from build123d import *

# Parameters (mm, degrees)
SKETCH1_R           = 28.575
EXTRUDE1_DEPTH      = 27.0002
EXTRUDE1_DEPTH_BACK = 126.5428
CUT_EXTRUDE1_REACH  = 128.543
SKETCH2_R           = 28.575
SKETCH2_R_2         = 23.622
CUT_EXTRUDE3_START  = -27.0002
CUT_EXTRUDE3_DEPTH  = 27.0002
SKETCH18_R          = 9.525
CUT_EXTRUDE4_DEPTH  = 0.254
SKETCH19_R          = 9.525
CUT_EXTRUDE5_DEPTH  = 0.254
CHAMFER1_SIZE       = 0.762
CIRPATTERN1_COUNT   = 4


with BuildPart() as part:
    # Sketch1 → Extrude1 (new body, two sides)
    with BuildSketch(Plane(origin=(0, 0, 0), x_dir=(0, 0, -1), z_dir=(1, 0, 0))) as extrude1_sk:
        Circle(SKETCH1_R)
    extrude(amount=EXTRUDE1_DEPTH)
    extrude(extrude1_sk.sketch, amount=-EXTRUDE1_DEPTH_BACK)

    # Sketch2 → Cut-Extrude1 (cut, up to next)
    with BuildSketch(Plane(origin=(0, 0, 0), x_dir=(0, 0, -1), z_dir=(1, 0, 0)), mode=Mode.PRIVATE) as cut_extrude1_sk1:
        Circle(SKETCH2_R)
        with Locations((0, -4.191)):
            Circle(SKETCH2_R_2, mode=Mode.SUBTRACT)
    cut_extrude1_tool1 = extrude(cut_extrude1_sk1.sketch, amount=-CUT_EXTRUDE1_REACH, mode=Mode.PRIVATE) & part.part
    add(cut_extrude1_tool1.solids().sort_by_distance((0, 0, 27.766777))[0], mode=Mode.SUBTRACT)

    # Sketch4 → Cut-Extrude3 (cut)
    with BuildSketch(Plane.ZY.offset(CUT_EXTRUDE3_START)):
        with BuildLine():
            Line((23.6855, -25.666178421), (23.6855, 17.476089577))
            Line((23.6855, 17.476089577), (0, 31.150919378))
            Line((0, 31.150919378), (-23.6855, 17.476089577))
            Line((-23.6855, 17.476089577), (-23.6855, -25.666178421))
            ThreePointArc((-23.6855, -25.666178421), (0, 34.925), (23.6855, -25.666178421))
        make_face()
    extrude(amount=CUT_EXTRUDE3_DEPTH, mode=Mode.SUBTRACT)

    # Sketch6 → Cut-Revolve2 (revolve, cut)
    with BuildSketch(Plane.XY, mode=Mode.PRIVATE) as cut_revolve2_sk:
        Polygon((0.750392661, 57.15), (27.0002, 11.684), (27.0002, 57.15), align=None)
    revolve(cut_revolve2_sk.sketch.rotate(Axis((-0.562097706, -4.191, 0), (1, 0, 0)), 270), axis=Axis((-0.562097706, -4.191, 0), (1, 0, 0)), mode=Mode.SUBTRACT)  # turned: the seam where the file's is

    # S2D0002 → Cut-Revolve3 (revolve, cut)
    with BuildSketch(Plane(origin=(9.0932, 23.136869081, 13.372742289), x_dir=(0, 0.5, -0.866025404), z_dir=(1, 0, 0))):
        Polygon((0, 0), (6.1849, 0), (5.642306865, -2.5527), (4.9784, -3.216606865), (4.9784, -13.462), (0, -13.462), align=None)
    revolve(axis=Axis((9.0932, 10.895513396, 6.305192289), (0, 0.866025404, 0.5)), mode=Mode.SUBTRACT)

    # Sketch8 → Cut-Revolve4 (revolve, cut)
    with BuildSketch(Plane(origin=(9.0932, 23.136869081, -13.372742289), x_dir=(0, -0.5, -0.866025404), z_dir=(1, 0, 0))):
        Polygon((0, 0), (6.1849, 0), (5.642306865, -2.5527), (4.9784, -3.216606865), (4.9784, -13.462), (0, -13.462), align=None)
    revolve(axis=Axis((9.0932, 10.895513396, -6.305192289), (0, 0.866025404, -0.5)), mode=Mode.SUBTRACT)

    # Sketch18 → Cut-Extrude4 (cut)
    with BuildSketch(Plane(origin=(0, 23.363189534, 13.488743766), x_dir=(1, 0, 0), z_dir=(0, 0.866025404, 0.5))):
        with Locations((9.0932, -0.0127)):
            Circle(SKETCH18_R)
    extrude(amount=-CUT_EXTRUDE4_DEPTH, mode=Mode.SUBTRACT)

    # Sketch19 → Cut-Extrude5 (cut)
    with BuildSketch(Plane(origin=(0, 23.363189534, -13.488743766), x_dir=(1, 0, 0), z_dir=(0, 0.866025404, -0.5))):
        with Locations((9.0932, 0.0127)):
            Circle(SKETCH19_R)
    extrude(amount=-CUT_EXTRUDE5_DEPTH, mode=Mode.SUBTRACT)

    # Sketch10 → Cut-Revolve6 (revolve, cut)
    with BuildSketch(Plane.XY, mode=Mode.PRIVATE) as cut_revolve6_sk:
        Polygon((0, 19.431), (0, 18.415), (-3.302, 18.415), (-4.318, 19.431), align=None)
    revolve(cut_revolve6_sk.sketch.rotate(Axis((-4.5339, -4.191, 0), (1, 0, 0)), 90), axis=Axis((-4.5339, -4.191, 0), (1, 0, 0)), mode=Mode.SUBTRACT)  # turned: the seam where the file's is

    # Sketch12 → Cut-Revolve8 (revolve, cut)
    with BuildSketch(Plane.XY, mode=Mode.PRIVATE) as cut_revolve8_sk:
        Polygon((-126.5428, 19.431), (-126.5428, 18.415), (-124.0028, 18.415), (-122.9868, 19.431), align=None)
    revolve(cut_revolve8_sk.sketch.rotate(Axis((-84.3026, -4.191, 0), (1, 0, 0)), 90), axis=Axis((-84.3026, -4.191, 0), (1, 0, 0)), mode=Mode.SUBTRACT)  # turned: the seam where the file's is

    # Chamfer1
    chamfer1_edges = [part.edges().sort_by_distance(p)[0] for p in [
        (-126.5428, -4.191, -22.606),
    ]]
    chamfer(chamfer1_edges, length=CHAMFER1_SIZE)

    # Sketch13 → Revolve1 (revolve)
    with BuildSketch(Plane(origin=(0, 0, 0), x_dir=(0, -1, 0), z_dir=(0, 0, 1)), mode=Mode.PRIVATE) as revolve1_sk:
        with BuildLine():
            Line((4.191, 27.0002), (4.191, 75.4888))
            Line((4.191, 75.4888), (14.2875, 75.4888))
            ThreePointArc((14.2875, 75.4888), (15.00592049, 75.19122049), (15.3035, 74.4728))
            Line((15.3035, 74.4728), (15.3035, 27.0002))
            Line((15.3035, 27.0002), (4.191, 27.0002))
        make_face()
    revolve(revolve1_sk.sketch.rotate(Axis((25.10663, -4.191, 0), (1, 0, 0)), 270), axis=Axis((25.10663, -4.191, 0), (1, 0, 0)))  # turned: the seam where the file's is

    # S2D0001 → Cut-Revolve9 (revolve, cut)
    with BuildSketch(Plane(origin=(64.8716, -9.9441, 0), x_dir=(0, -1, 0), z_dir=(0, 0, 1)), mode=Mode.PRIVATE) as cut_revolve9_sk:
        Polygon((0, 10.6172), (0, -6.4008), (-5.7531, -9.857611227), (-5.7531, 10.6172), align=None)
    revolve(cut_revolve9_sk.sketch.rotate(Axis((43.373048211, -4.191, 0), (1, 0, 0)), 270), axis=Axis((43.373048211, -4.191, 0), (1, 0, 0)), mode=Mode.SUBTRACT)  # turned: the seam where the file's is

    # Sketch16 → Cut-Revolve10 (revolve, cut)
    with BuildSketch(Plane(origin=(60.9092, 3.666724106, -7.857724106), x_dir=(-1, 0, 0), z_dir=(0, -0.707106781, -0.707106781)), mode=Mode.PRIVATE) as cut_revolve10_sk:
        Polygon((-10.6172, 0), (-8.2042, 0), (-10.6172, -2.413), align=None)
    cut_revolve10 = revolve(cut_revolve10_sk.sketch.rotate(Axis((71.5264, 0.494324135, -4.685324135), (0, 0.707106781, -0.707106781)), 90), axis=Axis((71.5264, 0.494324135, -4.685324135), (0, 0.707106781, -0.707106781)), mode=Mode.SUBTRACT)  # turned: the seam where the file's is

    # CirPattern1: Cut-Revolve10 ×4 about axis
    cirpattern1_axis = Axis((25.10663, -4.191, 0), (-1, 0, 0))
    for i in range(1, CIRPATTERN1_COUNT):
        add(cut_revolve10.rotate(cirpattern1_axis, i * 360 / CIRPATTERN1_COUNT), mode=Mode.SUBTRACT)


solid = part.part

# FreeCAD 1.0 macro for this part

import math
import FreeCAD as App
import Part
import Sketcher

V = App.Vector
Q = App.Units.Quantity


def edges_at(feature, points):
    """Names of the edges that pass closest to the given points."""
    edges = feature.Shape.Edges
    near = lambda p: min(range(len(edges)), key=lambda i: edges[i].distToShape(Part.Vertex(*p))[0])
    return sorted({f"Edge{near(p) + 1}" for p in points})


def add_polygon(sketch, points):
    """Adds a closed chain of lines whose ends are joined by coincident constraints."""
    first, n = sketch.GeometryCount, len(points)
    for a, b in zip(points, points[1:] + points[:1]):
        sketch.addGeometry(Part.LineSegment(App.Vector(*a, 0), App.Vector(*b, 0)), False)
    for i in range(n):
        sketch.addConstraint(Sketcher.Constraint("Coincident", first + i, 2, first + (i + 1) % n, 1))

doc = App.newDocument("Part")
body = doc.addObject("PartDesign::Body", "Body")

sketch1 = body.newObject("Sketcher::SketchObject", "Sketch")
sketch1.AttachmentSupport = (doc.getObject("YZ_Plane"), [""])
sketch1.MapMode = "FlatFace"
sketch1.addGeometry(Part.Circle(V(0, 0, 0), V(0, 0, 1), 29), False)
sketch1.addConstraint(Sketcher.Constraint("Coincident", 0, 3, -1, 1))
sketch1.addConstraint(Sketcher.Constraint("Diameter", 0, Q("2.25 in")))
pad1 = body.newObject("PartDesign::Pad", "Pad")
pad1.Profile = sketch1
pad1.Type = "TwoLengths"
pad1.Length = Q("1.063 in")
pad1.Length2 = Q("4.982 in")

sketch2 = body.newObject("Sketcher::SketchObject", "Sketch001")
sketch2.AttachmentSupport = (doc.getObject("YZ_Plane"), [""])
sketch2.MapMode = "FlatFace"
sketch2.addGeometry(Part.Circle(V(0, 0, 0), V(0, 0, 1), 29), False)
sketch2.addGeometry(Part.Circle(V(-4, 0, 0), V(0, 0, 1), 24), False)
sketch2.addConstraint(Sketcher.Constraint("Coincident", 0, 3, -1, 1))
sketch2.addConstraint(Sketcher.Constraint("PointOnObject", 1, 3, -1))
sketch2.addConstraint(Sketcher.Constraint("Diameter", 0, Q("2.25 in")))
sketch2.addConstraint(Sketcher.Constraint("Diameter", 1, Q("1.86 in")))
sketch2.addConstraint(Sketcher.Constraint("DistanceX", 1, 3, -1, 1, Q("0.165 in")))
pocket1 = body.newObject("PartDesign::Pocket", "Pocket")
pocket1.Profile = sketch2
pocket1.Type = "UpToFirst"

sketch3 = body.newObject("Sketcher::SketchObject", "Sketch002")
sketch3.AttachmentSupport = (doc.getObject("YZ_Plane"), [""])
sketch3.MapMode = "FlatFace"
sketch3.AttachmentOffset = App.Placement(V(0, 0, 1.063 * 25.4), App.Rotation())
sketch3.addGeometry(Part.LineSegment(V(17, 24, 0), V(-26, 24, 0)), False)
sketch3.addGeometry(Part.ArcOfCircle(Part.Circle(V(0, 0, 0), V(0, 0, 1), 35), math.radians(-137), math.radians(137)), False)
sketch3.addGeometry(Part.LineSegment(V(-26, -24, 0), V(17, -24, 0)), False)
sketch3.addGeometry(Part.LineSegment(V(17, -24, 0), V(31, 0, 0)), False)
sketch3.addGeometry(Part.LineSegment(V(31, 0, 0), V(17, 24, 0)), False)
sketch3.addConstraint(Sketcher.Constraint("Coincident", 0, 2, 1, 2))
sketch3.addConstraint(Sketcher.Constraint("Coincident", 1, 1, 2, 1))
sketch3.addConstraint(Sketcher.Constraint("Coincident", 2, 2, 3, 1))
sketch3.addConstraint(Sketcher.Constraint("Coincident", 3, 2, 4, 1))
sketch3.addConstraint(Sketcher.Constraint("Coincident", 4, 2, 0, 1))
sketch3.addConstraint(Sketcher.Constraint("Horizontal", 0))
sketch3.addConstraint(Sketcher.Constraint("Horizontal", 2))
sketch3.addConstraint(Sketcher.Constraint("Coincident", 1, 3, -1, 1))
sketch3.addConstraint(Sketcher.Constraint("Symmetric", 2, 2, 4, 2, -1))
sketch3.addConstraint(Sketcher.Constraint("PointOnObject", 3, 2, -1))
sketch3.addConstraint(Sketcher.Constraint("Angle", 3, Q("60 deg")))
sketch3.addConstraint(Sketcher.Constraint("Radius", 1, Q("1.375 in")))
sketch3.addConstraint(Sketcher.Constraint("DistanceY", 1, 1, 0, 2, Q("1.865 in")))
sketch3.addConstraint(Sketcher.Constraint("DistanceX", 0, 2, 0, 1, 43.142268))
pocket2 = body.newObject("PartDesign::Pocket", "Pocket001")
pocket2.Profile = sketch3
pocket2.Length = Q("1.063 in")

sketch4 = body.newObject("Sketcher::SketchObject", "Sketch003")
sketch4.AttachmentSupport = (doc.getObject("XY_Plane"), [""])
sketch4.MapMode = "FlatFace"
add_polygon(sketch4, [(1, 57), (27, 12), (27, 57)])
sketch4.addGeometry(Part.LineSegment(V(1, -4, 0), V(27, -4, 0)), True)
sketch4.addConstraint(Sketcher.Constraint("Vertical", 1))
sketch4.addConstraint(Sketcher.Constraint("Horizontal", 2))
sketch4.addConstraint(Sketcher.Constraint("Horizontal", 3))
sketch4.addConstraint(Sketcher.Constraint("Vertical", 2, 2, 3, 1))
sketch4.addConstraint(Sketcher.Constraint("Vertical", 1, 2, 3, 2))
sketch4.addConstraint(Sketcher.Constraint("Angle", 0, Q("-60 deg")))
sketch4.addConstraint(Sketcher.Constraint("DistanceY", 1, 1, 1, 2, Q("1.79 in")))
sketch4.addConstraint(Sketcher.Constraint("DistanceY", -1, 1, 0, 2, Q("0.46 in")))
sketch4.addConstraint(Sketcher.Constraint("DistanceX", -1, 1, 0, 2, Q("1.063 in")))
sketch4.addConstraint(Sketcher.Constraint("DistanceY", 3, 1, -1, 1, Q("0.165 in")))
groove = body.newObject("PartDesign::Groove", "Groove")
groove.Profile = sketch4
groove.ReferenceAxis = (sketch4, ["Axis0"])
groove.Angle = 360

sketch5 = body.newObject("Sketcher::SketchObject", "Sketch004")
sketch5.AttachmentSupport = (doc.getObject("YZ_Plane"), [""])
sketch5.MapMode = "FlatFace"
sketch5.AttachmentOffset = App.Placement(V(0, 0, 0.358 * 25.4), App.Rotation())
add_polygon(sketch5, [(26.2, 8), (23.1, 13.4), (11.5, 6.6), (14, 2.3), (22.8, 7.5), (23.7, 7.2)])
sketch5.addGeometry(Part.LineSegment(V(11.5, 6.6, 0), V(23.1, 13.4, 0)), True)
sketch5.addConstraint(Sketcher.Constraint("Coincident", 6, 1, 1, 2))
sketch5.addConstraint(Sketcher.Constraint("Coincident", 6, 2, 0, 2))
sketch5.addConstraint(Sketcher.Constraint("Perpendicular", 0, 1))
sketch5.addConstraint(Sketcher.Constraint("Perpendicular", 1, 2))
sketch5.addConstraint(Sketcher.Constraint("Perpendicular", 2, 3))
sketch5.addConstraint(Sketcher.Constraint("Angle", 0, Q("120 deg")))
sketch5.addConstraint(Sketcher.Constraint("Angle", 4, Q("-15 deg")))
sketch5.addConstraint(Sketcher.Constraint("Angle", 5, Q("18 deg")))
sketch5.addConstraint(Sketcher.Constraint("Distance", 1, Q("0.53 in")))
sketch5.addConstraint(Sketcher.Constraint("Distance", 2, Q("0.196 in")))
sketch5.addConstraint(Sketcher.Constraint("Distance", 0, Q("0.2435 in")))
sketch5.addConstraint(Sketcher.Constraint("DistanceX", 4, 2, 5, 2, 2.482))
sketch5.addConstraint(Sketcher.Constraint("DistanceX", -1, 1, 0, 2, 23.136869))
sketch5.addConstraint(Sketcher.Constraint("DistanceY", -1, 1, 2, 2, 2.330321))
groove2 = body.newObject("PartDesign::Groove", "Groove001")
groove2.Profile = sketch5
groove2.ReferenceAxis = (sketch5, ["Axis0"])
groove2.Angle = 360

sketch6 = body.newObject("Sketcher::SketchObject", "Sketch005")
sketch6.AttachmentSupport = (doc.getObject("YZ_Plane"), [""])
sketch6.MapMode = "FlatFace"
sketch6.AttachmentOffset = App.Placement(V(0, 0, 0.358 * 25.4), App.Rotation())
add_polygon(sketch6, [(20, -18.7), (23.1, -13.4), (11.5, -6.6), (9, -11), (17.9, -16.1), (18.1, -17)])
sketch6.addGeometry(Part.LineSegment(V(11.5, -6.6, 0), V(23.1, -13.4, 0)), True)
sketch6.addConstraint(Sketcher.Constraint("Coincident", 6, 1, 1, 2))
sketch6.addConstraint(Sketcher.Constraint("Coincident", 6, 2, 0, 2))
sketch6.addConstraint(Sketcher.Constraint("Perpendicular", 0, 1))
sketch6.addConstraint(Sketcher.Constraint("Perpendicular", 1, 2))
sketch6.addConstraint(Sketcher.Constraint("Perpendicular", 2, 3))
sketch6.addConstraint(Sketcher.Constraint("Angle", 0, Q("60 deg")))
sketch6.addConstraint(Sketcher.Constraint("Angle", 4, Q("-75 deg")))
sketch6.addConstraint(Sketcher.Constraint("Angle", 5, Q("-42 deg")))
sketch6.addConstraint(Sketcher.Constraint("Distance", 1, Q("0.53 in")))
sketch6.addConstraint(Sketcher.Constraint("Distance", 2, Q("0.196 in")))
sketch6.addConstraint(Sketcher.Constraint("Distance", 0, Q("0.2435 in")))
sketch6.addConstraint(Sketcher.Constraint("Distance", 5, 2.609729))
sketch6.addConstraint(Sketcher.Constraint("DistanceX", -1, 1, 0, 2, 23.136869))
sketch6.addConstraint(Sketcher.Constraint("DistanceY", 3, 2, -1, 1, 16.07586))
groove3 = body.newObject("PartDesign::Groove", "Groove002")
groove3.Profile = sketch6
groove3.ReferenceAxis = (sketch6, ["Axis0"])
groove3.Angle = 360

sketch7 = body.newObject("Sketcher::SketchObject", "Sketch006")
sketch7.Placement = App.Placement(V(0, 23.36319, 13.488744), App.Rotation(V(1, 0, 0), V(0, 0.5, -0.866025404), V(0, 0.866025404, 0.5), "ZXY"))
sketch7.addGeometry(Part.Circle(V(9, 0, 0), V(0, 0, 1), 10), False)
sketch7.addConstraint(Sketcher.Constraint("Diameter", 0, Q("0.75 in")))
sketch7.addConstraint(Sketcher.Constraint("DistanceX", -1, 1, 0, 3, Q("0.358 in")))
sketch7.addConstraint(Sketcher.Constraint("DistanceY", 0, 3, -1, 1, Q("0.0005 in")))
pocket3 = body.newObject("PartDesign::Pocket", "Pocket002")
pocket3.Profile = sketch7
pocket3.Length = Q("0.01 in")

sketch8 = body.newObject("Sketcher::SketchObject", "Sketch007")
sketch8.Placement = App.Placement(V(0, 23.36319, -13.488744), App.Rotation(V(1, 0, 0), V(0, -0.5, -0.866025404), V(0, 0.866025404, -0.5), "ZXY"))
sketch8.addGeometry(Part.Circle(V(9, 0, 0), V(0, 0, 1), 10), False)
sketch8.addConstraint(Sketcher.Constraint("Diameter", 0, Q("0.75 in")))
sketch8.addConstraint(Sketcher.Constraint("DistanceX", -1, 1, 0, 3, Q("0.358 in")))
sketch8.addConstraint(Sketcher.Constraint("DistanceY", -1, 1, 0, 3, Q("0.0005 in")))
pocket4 = body.newObject("PartDesign::Pocket", "Pocket003")
pocket4.Profile = sketch8
pocket4.Length = Q("0.01 in")

sketch9 = body.newObject("Sketcher::SketchObject", "Sketch008")
sketch9.AttachmentSupport = (doc.getObject("XY_Plane"), [""])
sketch9.MapMode = "FlatFace"
add_polygon(sketch9, [(0, 18.4), (0, 19.4), (-4.3, 19.4), (-3.3, 18.4)])
sketch9.addGeometry(Part.LineSegment(V(-4.3, -4.2, 0), V(0, -4.2, 0)), True)
sketch9.addConstraint(Sketcher.Constraint("Vertical", 0))
sketch9.addConstraint(Sketcher.Constraint("Horizontal", 1))
sketch9.addConstraint(Sketcher.Constraint("Horizontal", 3))
sketch9.addConstraint(Sketcher.Constraint("Horizontal", 4))
sketch9.addConstraint(Sketcher.Constraint("PointOnObject", 0, 2, -2))
sketch9.addConstraint(Sketcher.Constraint("PointOnObject", 4, 2, -2))
sketch9.addConstraint(Sketcher.Constraint("Vertical", 1, 2, 4, 1))
sketch9.addConstraint(Sketcher.Constraint("Angle", 2, Q("-45 deg")))
sketch9.addConstraint(Sketcher.Constraint("DistanceX", 1, 2, 1, 1, Q("0.17 in")))
sketch9.addConstraint(Sketcher.Constraint("DistanceX", 3, 1, 3, 2, Q("0.13 in")))
sketch9.addConstraint(Sketcher.Constraint("DistanceY", 4, 1, 2, 2, Q("0.89 in")))
sketch9.addConstraint(Sketcher.Constraint("DistanceY", -1, 1, 0, 2, Q("0.765 in")))
groove4 = body.newObject("PartDesign::Groove", "Groove003")
groove4.Profile = sketch9
groove4.ReferenceAxis = (sketch9, ["Axis0"])
groove4.Angle = 360

sketch10 = body.newObject("Sketcher::SketchObject", "Sketch009")
sketch10.AttachmentSupport = (doc.getObject("XY_Plane"), [""])
sketch10.MapMode = "FlatFace"
add_polygon(sketch10, [(-126.5, 19.4), (-126.5, 18.4), (-124, 18.4), (-123, 19.4)])
sketch10.addGeometry(Part.LineSegment(V(-126.5, -4.2, 0), V(-123, -4.2, 0)), True)
sketch10.addConstraint(Sketcher.Constraint("Vertical", 0))
sketch10.addConstraint(Sketcher.Constraint("Horizontal", 1))
sketch10.addConstraint(Sketcher.Constraint("Horizontal", 3))
sketch10.addConstraint(Sketcher.Constraint("Horizontal", 4))
sketch10.addConstraint(Sketcher.Constraint("Vertical", 3, 2, 4, 1))
sketch10.addConstraint(Sketcher.Constraint("Vertical", 2, 2, 4, 2))
sketch10.addConstraint(Sketcher.Constraint("DistanceX", 1, 1, 1, 2, Q("0.1 in")))
sketch10.addConstraint(Sketcher.Constraint("Angle", 2, Q("45 deg")))
sketch10.addConstraint(Sketcher.Constraint("DistanceX", 3, 2, 3, 1, Q("0.14 in")))
sketch10.addConstraint(Sketcher.Constraint("DistanceY", 4, 1, 0, 2, Q("0.89 in")))
sketch10.addConstraint(Sketcher.Constraint("DistanceX", 0, 2, -1, 1, Q("4.982 in")))
sketch10.addConstraint(Sketcher.Constraint("DistanceY", -1, 1, 0, 2, Q("0.725 in")))
groove5 = body.newObject("PartDesign::Groove", "Groove004")
groove5.Profile = sketch10
groove5.ReferenceAxis = (sketch10, ["Axis0"])
groove5.Angle = 360
doc.recompute()

chamfer = body.newObject("PartDesign::Chamfer", "Chamfer")
chamfer.Base = (groove5, edges_at(groove5, [(-126.543, -4.191, -22.606)]))
chamfer.Size = Q("0.03 in")

sketch11 = body.newObject("Sketcher::SketchObject", "Sketch010")
sketch11.AttachmentSupport = (doc.getObject("XY_Plane"), [""])
sketch11.MapMode = "FlatFace"
sketch11.addGeometry(Part.LineSegment(V(75.5, -4.2, 0), V(27, -4.2, 0)), False)
sketch11.addGeometry(Part.LineSegment(V(27, -4.2, 0), V(27, -15.3, 0)), False)
sketch11.addGeometry(Part.LineSegment(V(27, -15.3, 0), V(74.5, -15.3, 0)), False)
sketch11.addGeometry(Part.ArcOfCircle(Part.Circle(V(74.5, -14.3, 0), V(0, 0, 1), 1), math.radians(-90), math.radians(0)), False)
sketch11.addGeometry(Part.LineSegment(V(75.5, -14.3, 0), V(75.5, -4.2, 0)), False)
sketch11.addGeometry(Part.LineSegment(V(27, -4.2, 0), V(75.5, -4.2, 0)), True)
sketch11.addConstraint(Sketcher.Constraint("Coincident", 0, 2, 1, 1))
sketch11.addConstraint(Sketcher.Constraint("Coincident", 1, 2, 2, 1))
sketch11.addConstraint(Sketcher.Constraint("Tangent", 2, 2, 3, 1))
sketch11.addConstraint(Sketcher.Constraint("Tangent", 3, 2, 4, 1))
sketch11.addConstraint(Sketcher.Constraint("Coincident", 4, 2, 0, 1))
sketch11.addConstraint(Sketcher.Constraint("Horizontal", 0))
sketch11.addConstraint(Sketcher.Constraint("Vertical", 1))
sketch11.addConstraint(Sketcher.Constraint("Horizontal", 2))
sketch11.addConstraint(Sketcher.Constraint("Vertical", 4))
sketch11.addConstraint(Sketcher.Constraint("Horizontal", 5))
sketch11.addConstraint(Sketcher.Constraint("Coincident", 5, 1, 0, 2))
sketch11.addConstraint(Sketcher.Constraint("Vertical", 3, 2, 5, 2))
sketch11.addConstraint(Sketcher.Constraint("Radius", 3, Q("0.04 in")))
sketch11.addConstraint(Sketcher.Constraint("DistanceX", 0, 2, 0, 1, Q("1.909 in")))
sketch11.addConstraint(Sketcher.Constraint("DistanceY", 1, 2, 1, 1, Q("0.4375 in")))
sketch11.addConstraint(Sketcher.Constraint("DistanceX", -1, 1, 3, 3, Q("2.932 in")))
sketch11.addConstraint(Sketcher.Constraint("DistanceY", 3, 3, -1, 1, Q("0.5625 in")))
revolution = body.newObject("PartDesign::Revolution", "Revolution")
revolution.Profile = sketch11
revolution.ReferenceAxis = (sketch11, ["Axis0"])
revolution.Angle = 360

sketch12 = body.newObject("Sketcher::SketchObject", "Sketch011")
sketch12.AttachmentSupport = (doc.getObject("XY_Plane"), [""])
sketch12.MapMode = "FlatFace"
add_polygon(sketch12, [(58, -10), (75, -10), (75, -4), (55, -4)])
sketch12.addGeometry(Part.LineSegment(V(55, -4, 0), V(75, -4, 0)), True)
sketch12.addConstraint(Sketcher.Constraint("Horizontal", 0))
sketch12.addConstraint(Sketcher.Constraint("Vertical", 1))
sketch12.addConstraint(Sketcher.Constraint("Horizontal", 2))
sketch12.addConstraint(Sketcher.Constraint("Horizontal", 4))
sketch12.addConstraint(Sketcher.Constraint("Coincident", 4, 1, 2, 2))
sketch12.addConstraint(Sketcher.Constraint("Vertical", 0, 2, 4, 2))
sketch12.addConstraint(Sketcher.Constraint("Angle", 3, Q("-59 deg")))
sketch12.addConstraint(Sketcher.Constraint("DistanceX", 0, 1, 0, 2, Q("0.67 in")))
sketch12.addConstraint(Sketcher.Constraint("DistanceY", 1, 1, 1, 2, Q("0.2265 in")))
sketch12.addConstraint(Sketcher.Constraint("DistanceX", -1, 1, 0, 2, Q("2.972 in")))
sketch12.addConstraint(Sketcher.Constraint("DistanceY", 1, 2, -1, 1, Q("0.165 in")))
groove6 = body.newObject("PartDesign::Groove", "Groove005")
groove6.Profile = sketch12
groove6.ReferenceAxis = (sketch12, ["Axis0"])
groove6.Angle = 360

sketch13 = body.newObject("Sketcher::SketchObject", "Sketch012")
sketch13.Placement = App.Placement(V(60.9092, 3.666724, -7.857724), App.Rotation(V(-1, 0, 0), V(0, 0.707106781, -0.707106781), V(0, -0.707106781, -0.707106781), "ZXY"))
add_polygon(sketch13, [(-8.2, 0), (-10.6, 0), (-10.6, -2.4)])
sketch13.addGeometry(Part.LineSegment(V(-10.6, -2.4, 0), V(-10.6, 0, 0)), True)
sketch13.addConstraint(Sketcher.Constraint("Horizontal", 0))
sketch13.addConstraint(Sketcher.Constraint("Vertical", 1))
sketch13.addConstraint(Sketcher.Constraint("Vertical", 3))
sketch13.addConstraint(Sketcher.Constraint("Coincident", 3, 1, 1, 2))
sketch13.addConstraint(Sketcher.Constraint("PointOnObject", 0, 2, -1))
sketch13.addConstraint(Sketcher.Constraint("PointOnObject", 3, 2, -1))
sketch13.addConstraint(Sketcher.Constraint("Equal", 0, 1))
sketch13.addConstraint(Sketcher.Constraint("DistanceX", 0, 2, 0, 1, Q("0.095 in")))
sketch13.addConstraint(Sketcher.Constraint("DistanceX", 0, 2, -1, 1, Q("0.418 in")))
groove7 = body.newObject("PartDesign::Groove", "Groove006")
groove7.Profile = sketch13
groove7.ReferenceAxis = (sketch13, ["Axis0"])
groove7.Angle = 360
doc.recompute()

datumline = body.newObject("PartDesign::Line", "DatumLine")
datumline.Placement = App.Placement(V(0, -4.191, 0), App.Rotation(V(0, 0, 1), V(-1, 0, 0)))
polarpattern = body.newObject("PartDesign::PolarPattern", "PolarPattern")
polarpattern.Originals = [groove7]
polarpattern.Axis = (datumline, [""])
polarpattern.Angle = 360
polarpattern.Occurrences = 4
body.Tip = polarpattern

doc.recompute()
